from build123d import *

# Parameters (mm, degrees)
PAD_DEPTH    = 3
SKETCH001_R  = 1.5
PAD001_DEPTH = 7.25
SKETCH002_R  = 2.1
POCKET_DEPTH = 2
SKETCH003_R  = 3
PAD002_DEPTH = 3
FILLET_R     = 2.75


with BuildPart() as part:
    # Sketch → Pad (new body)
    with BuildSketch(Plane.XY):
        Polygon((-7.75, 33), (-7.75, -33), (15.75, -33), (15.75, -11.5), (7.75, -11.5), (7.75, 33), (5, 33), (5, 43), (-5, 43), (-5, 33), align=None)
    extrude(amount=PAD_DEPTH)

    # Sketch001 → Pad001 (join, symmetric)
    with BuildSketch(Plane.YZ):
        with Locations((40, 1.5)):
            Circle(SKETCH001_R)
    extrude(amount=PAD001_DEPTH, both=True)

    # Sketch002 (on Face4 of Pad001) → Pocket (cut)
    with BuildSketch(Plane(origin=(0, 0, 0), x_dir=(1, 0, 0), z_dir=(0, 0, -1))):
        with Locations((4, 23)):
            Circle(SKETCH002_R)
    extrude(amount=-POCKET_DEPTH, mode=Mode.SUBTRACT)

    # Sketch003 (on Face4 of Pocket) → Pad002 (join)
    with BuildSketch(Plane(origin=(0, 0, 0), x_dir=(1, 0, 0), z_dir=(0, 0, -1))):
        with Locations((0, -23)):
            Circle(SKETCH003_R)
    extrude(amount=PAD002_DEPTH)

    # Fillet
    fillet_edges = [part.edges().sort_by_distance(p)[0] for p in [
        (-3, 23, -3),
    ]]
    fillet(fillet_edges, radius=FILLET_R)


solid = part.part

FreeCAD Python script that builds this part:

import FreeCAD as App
import Part
import Sketcher
from FreeCAD import Vector
Q = App.Units.Quantity


def edges_at(feature, points):
    """Names of the edges that pass closest to the given points."""
    edges = feature.Shape.Edges
    near = lambda p: min(range(len(edges)), key=lambda i: edges[i].distToShape(Part.Vertex(*p))[0])
    return sorted({f"Edge{near(p) + 1}" for p in points})


def add_polygon(sketch, points):
    """Adds a closed chain of lines whose ends are joined by coincident constraints."""
    first, n = sketch.GeometryCount, len(points)
    for a, b in zip(points, points[1:] + points[:1]):
        sketch.addGeometry(Part.LineSegment(App.Vector(*a, 0), App.Vector(*b, 0)), False)
    for i in range(n):
        sketch.addConstraint(Sketcher.Constraint("Coincident", first + i, 2, first + (i + 1) % n, 1))

doc = App.newDocument("Part")
body = doc.addObject("PartDesign::Body", "Body")

# Sketch on XY plane
sketch1 = body.newObject("Sketcher::SketchObject", "Sketch")
sketch1.AttachmentSupport = (doc.getObject("XY_Plane"), [""])
sketch1.MapMode = "FlatFace"
add_polygon(sketch1, [(-7.8, 33), (-7.8, -33), (15.8, -33), (15.8, -11.5), (7.8, -11.5), (7.8, 33), (5, 33), (5, 43), (-5, 43), (-5, 33)])  # lines 0-9
sketch1.addConstraint([
    Sketcher.Constraint("Vertical", 0),
    Sketcher.Constraint("Horizontal", 1),
    Sketcher.Constraint("Vertical", 2),
    Sketcher.Constraint("Horizontal", 3),
    Sketcher.Constraint("Vertical", 4),
    Sketcher.Constraint("Horizontal", 5),
    Sketcher.Constraint("Vertical", 6),
    Sketcher.Constraint("Horizontal", 7),
    Sketcher.Constraint("Vertical", 8),
    Sketcher.Constraint("Horizontal", 9),
    Sketcher.Constraint("Symmetric", 0, 2, 4, 2, -1, 1),
    Sketcher.Constraint("Symmetric", 5, 2, 8, 2, -2),
    Sketcher.Constraint("Equal", 7, 6),
    Sketcher.Constraint("DistanceX", 3, 2, 3, 1, Q("8 mm")),
    Sketcher.Constraint("DistanceX", 7, 2, 7, 1, Q("10 mm")),
    Sketcher.Constraint("DistanceY", 0, 2, 0, 1, Q("66 mm")),
    Sketcher.Constraint("DistanceX", 1, 1, 1, 2, Q("23.5 mm")),
    Sketcher.Constraint("DistanceY", 2, 1, 2, 2, Q("21.5 mm")),
])
pad1 = body.newObject("PartDesign::Pad", "Pad")
pad1.Profile = sketch1
pad1.Length = 3

# Sketch on YZ plane
sketch2 = body.newObject("Sketcher::SketchObject", "Sketch001")
sketch2.AttachmentSupport = (doc.getObject("YZ_Plane"), [""])
sketch2.MapMode = "FlatFace"
sketch2.addGeometry(Part.Circle(Vector(40, 1.5, 0), Vector(0, 0, 1), 1.5), False)
sketch2.addConstraint([
    Sketcher.Constraint("Diameter", 0, Q("3 mm")),
    Sketcher.Constraint("DistanceX", -1, 1, 0, 3, Q("40 mm")),
    Sketcher.Constraint("DistanceY", -1, 1, 0, 3, Q("1.5 mm")),
])
pad2 = body.newObject("PartDesign::Pad", "Pad001")
pad2.Profile = sketch2
pad2.Length = 14.5
pad2.Midplane = True

# Sketch on XY plane
sketch3 = body.newObject("Sketcher::SketchObject", "Sketch002")
sketch3.AttachmentSupport = (doc.getObject("XY_Plane"), [""])
sketch3.MapMode = "FlatFace"
sketch3.addGeometry(Part.Circle(Vector(4, -23, 0), Vector(0, 0, 1), 2.1), False)
sketch3.addConstraint([
    Sketcher.Constraint("Diameter", 0, Q("4.2 mm")),
    Sketcher.Constraint("DistanceX", -1, 1, 0, 3, Q("4 mm")),
    Sketcher.Constraint("DistanceY", 0, 3, -1, 1, Q("23 mm")),
])
pocket1 = body.newObject("PartDesign::Pocket", "Pocket")
pocket1.Profile = sketch3
pocket1.Length = 2
pocket1.Reversed = True

# Sketch on XY plane
sketch4 = body.newObject("Sketcher::SketchObject", "Sketch003")
sketch4.AttachmentSupport = (doc.getObject("XY_Plane"), [""])
sketch4.MapMode = "FlatFace"
sketch4.addGeometry(Part.Circle(Vector(0, 23, 0), Vector(0, 0, 1), 3), False)
sketch4.addConstraint([
    Sketcher.Constraint("PointOnObject", 0, 3, -2),
    Sketcher.Constraint("Diameter", 0, Q("6 mm")),
    Sketcher.Constraint("DistanceY", -1, 1, 0, 3, Q("23 mm")),
])
pad3 = body.newObject("PartDesign::Pad", "Pad002")
pad3.Profile = sketch4
pad3.Length = 3
pad3.Reversed = True
doc.recompute()

fillet = body.newObject("PartDesign::Fillet", "Fillet")
fillet.Base = (pad3, edges_at(pad3, [(-3, 23, -3)]))
fillet.Radius = 2.75

doc.recompute()
